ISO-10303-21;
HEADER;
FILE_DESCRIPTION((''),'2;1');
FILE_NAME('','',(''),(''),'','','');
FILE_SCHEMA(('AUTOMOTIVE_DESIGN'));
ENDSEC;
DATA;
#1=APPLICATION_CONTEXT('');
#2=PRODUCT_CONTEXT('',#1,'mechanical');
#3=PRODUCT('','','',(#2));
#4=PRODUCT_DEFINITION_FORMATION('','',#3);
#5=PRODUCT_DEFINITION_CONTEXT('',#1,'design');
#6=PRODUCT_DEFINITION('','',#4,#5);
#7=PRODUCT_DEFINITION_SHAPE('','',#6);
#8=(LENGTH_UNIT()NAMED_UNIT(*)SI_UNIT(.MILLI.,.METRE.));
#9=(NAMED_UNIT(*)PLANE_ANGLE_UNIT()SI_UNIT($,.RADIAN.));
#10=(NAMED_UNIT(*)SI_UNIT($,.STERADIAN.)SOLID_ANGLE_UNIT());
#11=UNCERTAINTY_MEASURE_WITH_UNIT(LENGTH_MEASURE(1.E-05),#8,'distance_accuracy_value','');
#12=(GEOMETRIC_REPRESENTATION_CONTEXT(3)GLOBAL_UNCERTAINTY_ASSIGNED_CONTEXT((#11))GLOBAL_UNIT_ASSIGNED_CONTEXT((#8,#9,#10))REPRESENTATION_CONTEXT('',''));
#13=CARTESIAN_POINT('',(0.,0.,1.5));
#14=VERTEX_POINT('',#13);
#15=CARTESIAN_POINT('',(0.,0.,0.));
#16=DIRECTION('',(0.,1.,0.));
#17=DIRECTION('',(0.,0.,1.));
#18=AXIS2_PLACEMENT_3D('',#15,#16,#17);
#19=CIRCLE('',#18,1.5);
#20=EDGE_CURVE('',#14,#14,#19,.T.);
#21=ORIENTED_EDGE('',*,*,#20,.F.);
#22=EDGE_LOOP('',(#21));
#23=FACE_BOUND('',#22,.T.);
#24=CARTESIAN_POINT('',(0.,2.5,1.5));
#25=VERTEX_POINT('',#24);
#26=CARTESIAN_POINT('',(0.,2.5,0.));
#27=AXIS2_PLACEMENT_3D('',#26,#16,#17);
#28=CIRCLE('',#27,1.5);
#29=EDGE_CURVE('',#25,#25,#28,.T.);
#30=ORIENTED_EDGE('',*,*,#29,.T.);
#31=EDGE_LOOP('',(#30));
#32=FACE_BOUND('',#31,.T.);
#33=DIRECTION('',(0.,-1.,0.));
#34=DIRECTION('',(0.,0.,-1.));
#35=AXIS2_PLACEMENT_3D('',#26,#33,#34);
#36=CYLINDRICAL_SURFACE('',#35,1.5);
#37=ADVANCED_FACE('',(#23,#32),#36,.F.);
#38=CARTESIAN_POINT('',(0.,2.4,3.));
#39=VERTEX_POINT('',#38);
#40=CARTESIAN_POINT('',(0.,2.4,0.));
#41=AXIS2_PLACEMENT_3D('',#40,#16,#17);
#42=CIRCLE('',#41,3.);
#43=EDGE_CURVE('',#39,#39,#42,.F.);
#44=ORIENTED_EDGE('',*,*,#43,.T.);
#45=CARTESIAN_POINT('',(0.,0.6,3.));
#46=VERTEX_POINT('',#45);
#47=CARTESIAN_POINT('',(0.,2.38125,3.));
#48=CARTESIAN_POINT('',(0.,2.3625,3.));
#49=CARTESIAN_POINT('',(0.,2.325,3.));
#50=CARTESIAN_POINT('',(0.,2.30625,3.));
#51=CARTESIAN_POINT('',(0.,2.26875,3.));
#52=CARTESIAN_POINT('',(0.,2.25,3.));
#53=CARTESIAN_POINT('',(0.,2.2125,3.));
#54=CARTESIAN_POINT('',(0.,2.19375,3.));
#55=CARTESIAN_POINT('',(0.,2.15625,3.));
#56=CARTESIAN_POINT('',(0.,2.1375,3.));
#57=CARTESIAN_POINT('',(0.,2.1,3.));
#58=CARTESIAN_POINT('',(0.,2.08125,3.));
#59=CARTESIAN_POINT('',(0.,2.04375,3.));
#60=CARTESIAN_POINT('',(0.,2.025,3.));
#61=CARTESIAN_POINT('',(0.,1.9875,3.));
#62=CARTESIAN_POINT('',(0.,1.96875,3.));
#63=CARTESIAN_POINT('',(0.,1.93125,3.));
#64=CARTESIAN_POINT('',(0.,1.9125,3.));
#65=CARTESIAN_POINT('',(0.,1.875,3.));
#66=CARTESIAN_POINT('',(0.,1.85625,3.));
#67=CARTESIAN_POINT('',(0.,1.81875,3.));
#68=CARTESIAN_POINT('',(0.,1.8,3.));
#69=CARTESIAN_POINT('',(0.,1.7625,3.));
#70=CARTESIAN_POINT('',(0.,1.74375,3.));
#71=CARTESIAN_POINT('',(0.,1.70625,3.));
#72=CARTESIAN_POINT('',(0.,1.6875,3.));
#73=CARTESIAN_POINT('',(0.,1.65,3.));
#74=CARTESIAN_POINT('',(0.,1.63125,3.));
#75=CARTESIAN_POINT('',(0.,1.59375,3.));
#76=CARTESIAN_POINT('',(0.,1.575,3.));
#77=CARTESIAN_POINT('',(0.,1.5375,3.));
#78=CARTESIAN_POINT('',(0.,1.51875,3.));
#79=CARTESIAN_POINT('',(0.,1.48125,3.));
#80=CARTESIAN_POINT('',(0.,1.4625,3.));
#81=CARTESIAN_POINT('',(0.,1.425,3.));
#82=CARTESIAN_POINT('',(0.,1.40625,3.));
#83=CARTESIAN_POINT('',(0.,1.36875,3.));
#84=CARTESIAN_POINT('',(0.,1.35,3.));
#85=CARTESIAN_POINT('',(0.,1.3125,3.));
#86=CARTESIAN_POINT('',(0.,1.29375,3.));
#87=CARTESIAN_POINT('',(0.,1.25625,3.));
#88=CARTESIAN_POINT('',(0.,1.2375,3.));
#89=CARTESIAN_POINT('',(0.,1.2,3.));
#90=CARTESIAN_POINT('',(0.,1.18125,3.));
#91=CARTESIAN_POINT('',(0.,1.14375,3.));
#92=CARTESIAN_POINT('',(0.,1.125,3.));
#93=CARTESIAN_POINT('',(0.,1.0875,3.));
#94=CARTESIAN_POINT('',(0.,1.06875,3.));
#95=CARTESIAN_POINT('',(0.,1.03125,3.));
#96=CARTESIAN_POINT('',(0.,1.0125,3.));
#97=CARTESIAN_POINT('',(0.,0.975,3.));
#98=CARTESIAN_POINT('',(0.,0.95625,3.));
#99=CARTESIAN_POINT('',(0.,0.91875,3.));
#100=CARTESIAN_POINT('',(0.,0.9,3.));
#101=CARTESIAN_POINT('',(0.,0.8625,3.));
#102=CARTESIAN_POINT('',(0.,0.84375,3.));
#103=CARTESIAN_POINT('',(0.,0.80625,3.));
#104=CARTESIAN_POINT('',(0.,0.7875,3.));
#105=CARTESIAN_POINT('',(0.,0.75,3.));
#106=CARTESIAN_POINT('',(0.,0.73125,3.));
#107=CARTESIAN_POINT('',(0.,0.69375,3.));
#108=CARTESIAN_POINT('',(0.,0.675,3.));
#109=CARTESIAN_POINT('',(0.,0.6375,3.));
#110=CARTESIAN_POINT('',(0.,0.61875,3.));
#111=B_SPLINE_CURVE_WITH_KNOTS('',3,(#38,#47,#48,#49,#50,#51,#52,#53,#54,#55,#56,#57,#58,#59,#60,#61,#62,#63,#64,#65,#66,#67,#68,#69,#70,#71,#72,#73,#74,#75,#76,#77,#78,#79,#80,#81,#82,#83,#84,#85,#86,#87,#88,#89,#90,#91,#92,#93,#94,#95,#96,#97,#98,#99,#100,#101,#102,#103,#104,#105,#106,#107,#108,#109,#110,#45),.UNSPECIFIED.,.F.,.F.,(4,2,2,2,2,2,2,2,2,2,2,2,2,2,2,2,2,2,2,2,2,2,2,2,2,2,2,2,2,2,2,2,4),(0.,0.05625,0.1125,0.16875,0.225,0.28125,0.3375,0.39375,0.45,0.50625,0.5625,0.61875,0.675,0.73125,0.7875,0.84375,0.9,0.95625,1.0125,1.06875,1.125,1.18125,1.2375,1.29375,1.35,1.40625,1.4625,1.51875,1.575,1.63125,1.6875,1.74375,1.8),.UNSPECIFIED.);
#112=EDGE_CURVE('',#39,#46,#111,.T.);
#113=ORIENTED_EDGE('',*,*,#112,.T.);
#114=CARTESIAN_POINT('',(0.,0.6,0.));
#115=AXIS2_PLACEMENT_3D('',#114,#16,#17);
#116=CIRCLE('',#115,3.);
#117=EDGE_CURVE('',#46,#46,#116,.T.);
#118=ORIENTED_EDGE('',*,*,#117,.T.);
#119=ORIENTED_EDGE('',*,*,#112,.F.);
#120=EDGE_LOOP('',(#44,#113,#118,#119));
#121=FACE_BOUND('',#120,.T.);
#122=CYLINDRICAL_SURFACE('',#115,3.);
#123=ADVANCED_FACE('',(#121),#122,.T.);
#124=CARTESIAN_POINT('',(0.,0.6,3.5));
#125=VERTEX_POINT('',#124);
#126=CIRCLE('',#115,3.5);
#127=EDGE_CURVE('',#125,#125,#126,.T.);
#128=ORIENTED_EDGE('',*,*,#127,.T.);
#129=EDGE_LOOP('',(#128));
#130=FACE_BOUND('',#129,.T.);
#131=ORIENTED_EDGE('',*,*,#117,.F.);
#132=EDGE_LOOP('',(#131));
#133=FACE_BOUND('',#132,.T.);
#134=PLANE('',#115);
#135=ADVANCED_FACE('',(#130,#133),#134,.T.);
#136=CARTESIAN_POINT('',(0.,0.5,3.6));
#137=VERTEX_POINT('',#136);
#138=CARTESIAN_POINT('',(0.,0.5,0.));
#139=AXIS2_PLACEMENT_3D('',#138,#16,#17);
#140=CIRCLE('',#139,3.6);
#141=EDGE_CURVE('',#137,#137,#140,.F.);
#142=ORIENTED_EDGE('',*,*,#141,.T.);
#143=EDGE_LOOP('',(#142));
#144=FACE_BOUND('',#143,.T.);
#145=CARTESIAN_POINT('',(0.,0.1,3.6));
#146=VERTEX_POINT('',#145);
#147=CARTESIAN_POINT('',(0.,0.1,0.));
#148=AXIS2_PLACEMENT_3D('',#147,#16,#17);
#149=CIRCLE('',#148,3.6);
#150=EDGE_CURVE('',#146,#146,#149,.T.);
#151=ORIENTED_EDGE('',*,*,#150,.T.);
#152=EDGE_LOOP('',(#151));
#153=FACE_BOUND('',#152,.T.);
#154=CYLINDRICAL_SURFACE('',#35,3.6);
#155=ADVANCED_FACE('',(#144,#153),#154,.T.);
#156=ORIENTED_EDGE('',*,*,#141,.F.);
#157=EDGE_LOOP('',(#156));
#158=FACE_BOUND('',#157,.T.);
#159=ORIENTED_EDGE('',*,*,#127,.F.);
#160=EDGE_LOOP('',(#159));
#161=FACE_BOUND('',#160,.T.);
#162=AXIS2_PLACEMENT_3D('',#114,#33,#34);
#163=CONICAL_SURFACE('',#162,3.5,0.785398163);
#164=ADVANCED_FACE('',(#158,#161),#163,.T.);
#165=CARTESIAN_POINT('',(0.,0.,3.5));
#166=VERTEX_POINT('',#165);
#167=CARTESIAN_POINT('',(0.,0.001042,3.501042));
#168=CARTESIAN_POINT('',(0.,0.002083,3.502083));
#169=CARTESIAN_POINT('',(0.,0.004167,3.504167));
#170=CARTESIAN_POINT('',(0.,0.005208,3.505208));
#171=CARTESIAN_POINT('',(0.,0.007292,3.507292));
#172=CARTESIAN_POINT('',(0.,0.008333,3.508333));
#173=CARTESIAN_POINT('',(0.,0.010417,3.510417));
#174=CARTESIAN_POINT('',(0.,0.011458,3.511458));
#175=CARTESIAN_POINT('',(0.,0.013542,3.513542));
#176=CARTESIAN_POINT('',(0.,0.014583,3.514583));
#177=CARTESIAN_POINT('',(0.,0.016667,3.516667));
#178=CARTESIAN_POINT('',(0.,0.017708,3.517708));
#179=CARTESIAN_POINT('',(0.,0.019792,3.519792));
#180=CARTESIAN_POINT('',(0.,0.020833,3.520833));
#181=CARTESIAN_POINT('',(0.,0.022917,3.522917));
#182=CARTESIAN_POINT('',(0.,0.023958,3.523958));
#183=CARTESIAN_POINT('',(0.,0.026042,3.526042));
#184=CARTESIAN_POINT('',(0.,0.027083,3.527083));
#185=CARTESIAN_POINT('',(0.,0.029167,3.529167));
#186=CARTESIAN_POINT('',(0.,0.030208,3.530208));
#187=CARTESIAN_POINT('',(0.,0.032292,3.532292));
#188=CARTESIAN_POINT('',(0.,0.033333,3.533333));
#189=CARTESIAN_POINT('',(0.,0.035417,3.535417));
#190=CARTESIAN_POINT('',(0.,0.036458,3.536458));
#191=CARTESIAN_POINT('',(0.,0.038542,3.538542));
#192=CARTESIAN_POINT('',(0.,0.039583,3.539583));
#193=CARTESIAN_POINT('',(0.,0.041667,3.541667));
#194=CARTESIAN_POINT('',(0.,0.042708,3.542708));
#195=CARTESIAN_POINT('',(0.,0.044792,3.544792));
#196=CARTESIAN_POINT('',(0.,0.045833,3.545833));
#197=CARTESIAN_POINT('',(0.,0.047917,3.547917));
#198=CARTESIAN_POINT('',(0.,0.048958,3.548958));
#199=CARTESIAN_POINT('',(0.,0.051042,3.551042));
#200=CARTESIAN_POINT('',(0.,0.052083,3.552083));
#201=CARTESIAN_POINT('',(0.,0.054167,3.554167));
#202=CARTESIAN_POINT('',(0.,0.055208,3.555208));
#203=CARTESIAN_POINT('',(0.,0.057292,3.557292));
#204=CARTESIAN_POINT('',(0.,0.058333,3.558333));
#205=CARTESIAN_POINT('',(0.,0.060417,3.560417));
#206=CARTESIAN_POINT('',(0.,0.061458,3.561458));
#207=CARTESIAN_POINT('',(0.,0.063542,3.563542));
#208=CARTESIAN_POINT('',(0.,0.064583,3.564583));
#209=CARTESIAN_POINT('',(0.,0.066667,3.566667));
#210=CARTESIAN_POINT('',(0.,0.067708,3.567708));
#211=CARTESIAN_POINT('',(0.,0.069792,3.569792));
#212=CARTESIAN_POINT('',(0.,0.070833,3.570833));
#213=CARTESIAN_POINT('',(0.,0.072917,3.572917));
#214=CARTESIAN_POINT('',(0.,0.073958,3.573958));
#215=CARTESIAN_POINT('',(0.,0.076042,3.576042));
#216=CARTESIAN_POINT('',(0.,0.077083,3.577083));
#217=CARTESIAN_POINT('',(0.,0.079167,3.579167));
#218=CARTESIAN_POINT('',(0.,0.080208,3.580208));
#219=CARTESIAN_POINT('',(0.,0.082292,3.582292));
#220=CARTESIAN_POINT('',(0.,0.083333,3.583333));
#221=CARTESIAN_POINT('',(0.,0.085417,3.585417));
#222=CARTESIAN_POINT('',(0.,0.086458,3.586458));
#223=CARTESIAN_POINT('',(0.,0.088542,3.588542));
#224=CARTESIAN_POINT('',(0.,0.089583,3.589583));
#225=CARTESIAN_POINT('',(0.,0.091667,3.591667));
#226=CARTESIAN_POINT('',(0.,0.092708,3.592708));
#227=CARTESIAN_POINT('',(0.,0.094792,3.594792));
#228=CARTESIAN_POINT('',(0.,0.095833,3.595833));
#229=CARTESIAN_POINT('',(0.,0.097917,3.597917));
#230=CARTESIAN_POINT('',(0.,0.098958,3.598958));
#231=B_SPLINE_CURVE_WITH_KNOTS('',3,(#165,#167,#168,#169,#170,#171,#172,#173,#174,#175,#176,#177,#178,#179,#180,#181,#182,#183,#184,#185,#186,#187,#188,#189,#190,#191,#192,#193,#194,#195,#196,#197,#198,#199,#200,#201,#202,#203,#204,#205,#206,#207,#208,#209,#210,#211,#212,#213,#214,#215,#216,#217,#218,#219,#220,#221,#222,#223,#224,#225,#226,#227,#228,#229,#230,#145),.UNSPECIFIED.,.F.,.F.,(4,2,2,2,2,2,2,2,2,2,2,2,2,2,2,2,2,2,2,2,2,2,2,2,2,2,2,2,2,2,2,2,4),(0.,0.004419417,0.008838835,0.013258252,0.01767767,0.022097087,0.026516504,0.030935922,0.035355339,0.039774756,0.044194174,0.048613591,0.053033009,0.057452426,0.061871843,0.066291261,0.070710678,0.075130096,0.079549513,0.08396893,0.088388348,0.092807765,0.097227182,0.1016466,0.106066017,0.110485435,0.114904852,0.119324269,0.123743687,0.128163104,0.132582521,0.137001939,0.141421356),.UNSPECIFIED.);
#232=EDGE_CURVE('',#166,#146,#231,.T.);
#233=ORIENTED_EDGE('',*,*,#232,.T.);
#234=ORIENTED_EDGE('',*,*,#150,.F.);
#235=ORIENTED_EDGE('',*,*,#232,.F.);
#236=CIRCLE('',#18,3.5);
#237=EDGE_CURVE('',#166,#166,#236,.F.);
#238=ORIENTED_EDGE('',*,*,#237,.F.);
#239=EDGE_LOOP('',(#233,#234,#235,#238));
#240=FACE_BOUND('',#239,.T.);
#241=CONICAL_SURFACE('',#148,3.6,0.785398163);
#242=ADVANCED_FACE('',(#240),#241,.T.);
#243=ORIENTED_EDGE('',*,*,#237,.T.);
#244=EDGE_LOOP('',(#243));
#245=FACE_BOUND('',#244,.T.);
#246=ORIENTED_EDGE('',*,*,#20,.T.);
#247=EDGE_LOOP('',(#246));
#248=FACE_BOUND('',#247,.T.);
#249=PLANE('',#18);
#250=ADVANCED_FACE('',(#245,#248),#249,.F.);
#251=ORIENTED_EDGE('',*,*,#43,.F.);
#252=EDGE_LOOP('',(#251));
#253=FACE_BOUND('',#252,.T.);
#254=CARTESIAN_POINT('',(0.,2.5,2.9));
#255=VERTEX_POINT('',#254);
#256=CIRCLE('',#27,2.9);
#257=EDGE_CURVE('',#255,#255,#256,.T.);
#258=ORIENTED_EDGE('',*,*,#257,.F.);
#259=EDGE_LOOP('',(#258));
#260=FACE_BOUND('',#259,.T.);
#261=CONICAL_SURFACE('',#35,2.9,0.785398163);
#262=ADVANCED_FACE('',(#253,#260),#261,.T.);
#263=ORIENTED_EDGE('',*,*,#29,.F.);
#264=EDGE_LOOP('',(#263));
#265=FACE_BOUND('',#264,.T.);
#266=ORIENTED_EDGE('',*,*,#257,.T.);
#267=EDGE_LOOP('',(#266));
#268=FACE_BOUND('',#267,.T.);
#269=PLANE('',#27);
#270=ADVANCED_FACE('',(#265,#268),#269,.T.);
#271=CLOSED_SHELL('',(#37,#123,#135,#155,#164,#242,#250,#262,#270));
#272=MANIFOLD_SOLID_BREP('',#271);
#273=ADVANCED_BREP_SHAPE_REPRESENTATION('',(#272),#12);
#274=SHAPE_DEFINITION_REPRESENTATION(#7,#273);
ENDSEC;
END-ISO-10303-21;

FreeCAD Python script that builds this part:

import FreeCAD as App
import Part
import Sketcher
from FreeCAD import Vector


def edges_at(feature, points):
    """Names of the edges that pass closest to the given points."""
    edges = feature.Shape.Edges
    near = lambda p: min(range(len(edges)), key=lambda i: edges[i].distToShape(Part.Vertex(*p))[0])
    return sorted({f"Edge{near(p) + 1}" for p in points})

doc = App.newDocument("Part")
body = doc.addObject("PartDesign::Body", "Body")

sketch1 = body.newObject("Sketcher::SketchObject", "Sketch")
sketch1.AttachmentSupport = (doc.getObject("XZ_Plane"), [""])
sketch1.MapMode = "FlatFace"
sketch1.addGeometry(Part.Circle(Vector(0, 0, 0), Vector(0, 0, 1), 3.6), False)
sketch1.addGeometry(Part.Circle(Vector(0, 0, 0), Vector(0, 0, 1), 1.5), False)
sketch1.addConstraint(Sketcher.Constraint("Coincident", 0, 3, -1, 1))
sketch1.addConstraint(Sketcher.Constraint("Coincident", 1, 3, -1, 1))
sketch1.addConstraint(Sketcher.Constraint("Diameter", 1, 3.0))
sketch1.addConstraint(Sketcher.Constraint("Diameter", 0, 7.2))
pad1 = body.newObject("PartDesign::Pad", "Pad")
pad1.Profile = sketch1
pad1.Length = 2.5
pad1.Reversed = True

sketch2 = body.newObject("Sketcher::SketchObject", "Sketch001")
sketch2.AttachmentSupport = (doc.getObject("XZ_Plane"), [""])
sketch2.MapMode = "FlatFace"
sketch2.AttachmentOffset = App.Placement(Vector(0, 0, -0.6), App.Rotation())
sketch2.addGeometry(Part.Circle(Vector(0, 0, 0), Vector(0, 0, 1), 3.6), False)
sketch2.addGeometry(Part.Circle(Vector(0, 0, 0), Vector(0, 0, 1), 3), False)
sketch2.addConstraint(Sketcher.Constraint("Coincident", 0, 3, -1, 1))
sketch2.addConstraint(Sketcher.Constraint("Coincident", 1, 3, -1, 1))
sketch2.addConstraint(Sketcher.Constraint("Diameter", 1, 6.0))
sketch2.addConstraint(Sketcher.Constraint("Diameter", 0, 7.2))
pocket1 = body.newObject("PartDesign::Pocket", "Pocket")
pocket1.Profile = sketch2
pocket1.Length = 1.9
doc.recompute()

chamfer = body.newObject("PartDesign::Chamfer", "Chamfer")
chamfer.Base = (pocket1, edges_at(pocket1, [(0, 0.6, -3.6), (0, 2.5, -3), (0, 0, -3.6)]))
chamfer.Size = 0.1

doc.recompute()
